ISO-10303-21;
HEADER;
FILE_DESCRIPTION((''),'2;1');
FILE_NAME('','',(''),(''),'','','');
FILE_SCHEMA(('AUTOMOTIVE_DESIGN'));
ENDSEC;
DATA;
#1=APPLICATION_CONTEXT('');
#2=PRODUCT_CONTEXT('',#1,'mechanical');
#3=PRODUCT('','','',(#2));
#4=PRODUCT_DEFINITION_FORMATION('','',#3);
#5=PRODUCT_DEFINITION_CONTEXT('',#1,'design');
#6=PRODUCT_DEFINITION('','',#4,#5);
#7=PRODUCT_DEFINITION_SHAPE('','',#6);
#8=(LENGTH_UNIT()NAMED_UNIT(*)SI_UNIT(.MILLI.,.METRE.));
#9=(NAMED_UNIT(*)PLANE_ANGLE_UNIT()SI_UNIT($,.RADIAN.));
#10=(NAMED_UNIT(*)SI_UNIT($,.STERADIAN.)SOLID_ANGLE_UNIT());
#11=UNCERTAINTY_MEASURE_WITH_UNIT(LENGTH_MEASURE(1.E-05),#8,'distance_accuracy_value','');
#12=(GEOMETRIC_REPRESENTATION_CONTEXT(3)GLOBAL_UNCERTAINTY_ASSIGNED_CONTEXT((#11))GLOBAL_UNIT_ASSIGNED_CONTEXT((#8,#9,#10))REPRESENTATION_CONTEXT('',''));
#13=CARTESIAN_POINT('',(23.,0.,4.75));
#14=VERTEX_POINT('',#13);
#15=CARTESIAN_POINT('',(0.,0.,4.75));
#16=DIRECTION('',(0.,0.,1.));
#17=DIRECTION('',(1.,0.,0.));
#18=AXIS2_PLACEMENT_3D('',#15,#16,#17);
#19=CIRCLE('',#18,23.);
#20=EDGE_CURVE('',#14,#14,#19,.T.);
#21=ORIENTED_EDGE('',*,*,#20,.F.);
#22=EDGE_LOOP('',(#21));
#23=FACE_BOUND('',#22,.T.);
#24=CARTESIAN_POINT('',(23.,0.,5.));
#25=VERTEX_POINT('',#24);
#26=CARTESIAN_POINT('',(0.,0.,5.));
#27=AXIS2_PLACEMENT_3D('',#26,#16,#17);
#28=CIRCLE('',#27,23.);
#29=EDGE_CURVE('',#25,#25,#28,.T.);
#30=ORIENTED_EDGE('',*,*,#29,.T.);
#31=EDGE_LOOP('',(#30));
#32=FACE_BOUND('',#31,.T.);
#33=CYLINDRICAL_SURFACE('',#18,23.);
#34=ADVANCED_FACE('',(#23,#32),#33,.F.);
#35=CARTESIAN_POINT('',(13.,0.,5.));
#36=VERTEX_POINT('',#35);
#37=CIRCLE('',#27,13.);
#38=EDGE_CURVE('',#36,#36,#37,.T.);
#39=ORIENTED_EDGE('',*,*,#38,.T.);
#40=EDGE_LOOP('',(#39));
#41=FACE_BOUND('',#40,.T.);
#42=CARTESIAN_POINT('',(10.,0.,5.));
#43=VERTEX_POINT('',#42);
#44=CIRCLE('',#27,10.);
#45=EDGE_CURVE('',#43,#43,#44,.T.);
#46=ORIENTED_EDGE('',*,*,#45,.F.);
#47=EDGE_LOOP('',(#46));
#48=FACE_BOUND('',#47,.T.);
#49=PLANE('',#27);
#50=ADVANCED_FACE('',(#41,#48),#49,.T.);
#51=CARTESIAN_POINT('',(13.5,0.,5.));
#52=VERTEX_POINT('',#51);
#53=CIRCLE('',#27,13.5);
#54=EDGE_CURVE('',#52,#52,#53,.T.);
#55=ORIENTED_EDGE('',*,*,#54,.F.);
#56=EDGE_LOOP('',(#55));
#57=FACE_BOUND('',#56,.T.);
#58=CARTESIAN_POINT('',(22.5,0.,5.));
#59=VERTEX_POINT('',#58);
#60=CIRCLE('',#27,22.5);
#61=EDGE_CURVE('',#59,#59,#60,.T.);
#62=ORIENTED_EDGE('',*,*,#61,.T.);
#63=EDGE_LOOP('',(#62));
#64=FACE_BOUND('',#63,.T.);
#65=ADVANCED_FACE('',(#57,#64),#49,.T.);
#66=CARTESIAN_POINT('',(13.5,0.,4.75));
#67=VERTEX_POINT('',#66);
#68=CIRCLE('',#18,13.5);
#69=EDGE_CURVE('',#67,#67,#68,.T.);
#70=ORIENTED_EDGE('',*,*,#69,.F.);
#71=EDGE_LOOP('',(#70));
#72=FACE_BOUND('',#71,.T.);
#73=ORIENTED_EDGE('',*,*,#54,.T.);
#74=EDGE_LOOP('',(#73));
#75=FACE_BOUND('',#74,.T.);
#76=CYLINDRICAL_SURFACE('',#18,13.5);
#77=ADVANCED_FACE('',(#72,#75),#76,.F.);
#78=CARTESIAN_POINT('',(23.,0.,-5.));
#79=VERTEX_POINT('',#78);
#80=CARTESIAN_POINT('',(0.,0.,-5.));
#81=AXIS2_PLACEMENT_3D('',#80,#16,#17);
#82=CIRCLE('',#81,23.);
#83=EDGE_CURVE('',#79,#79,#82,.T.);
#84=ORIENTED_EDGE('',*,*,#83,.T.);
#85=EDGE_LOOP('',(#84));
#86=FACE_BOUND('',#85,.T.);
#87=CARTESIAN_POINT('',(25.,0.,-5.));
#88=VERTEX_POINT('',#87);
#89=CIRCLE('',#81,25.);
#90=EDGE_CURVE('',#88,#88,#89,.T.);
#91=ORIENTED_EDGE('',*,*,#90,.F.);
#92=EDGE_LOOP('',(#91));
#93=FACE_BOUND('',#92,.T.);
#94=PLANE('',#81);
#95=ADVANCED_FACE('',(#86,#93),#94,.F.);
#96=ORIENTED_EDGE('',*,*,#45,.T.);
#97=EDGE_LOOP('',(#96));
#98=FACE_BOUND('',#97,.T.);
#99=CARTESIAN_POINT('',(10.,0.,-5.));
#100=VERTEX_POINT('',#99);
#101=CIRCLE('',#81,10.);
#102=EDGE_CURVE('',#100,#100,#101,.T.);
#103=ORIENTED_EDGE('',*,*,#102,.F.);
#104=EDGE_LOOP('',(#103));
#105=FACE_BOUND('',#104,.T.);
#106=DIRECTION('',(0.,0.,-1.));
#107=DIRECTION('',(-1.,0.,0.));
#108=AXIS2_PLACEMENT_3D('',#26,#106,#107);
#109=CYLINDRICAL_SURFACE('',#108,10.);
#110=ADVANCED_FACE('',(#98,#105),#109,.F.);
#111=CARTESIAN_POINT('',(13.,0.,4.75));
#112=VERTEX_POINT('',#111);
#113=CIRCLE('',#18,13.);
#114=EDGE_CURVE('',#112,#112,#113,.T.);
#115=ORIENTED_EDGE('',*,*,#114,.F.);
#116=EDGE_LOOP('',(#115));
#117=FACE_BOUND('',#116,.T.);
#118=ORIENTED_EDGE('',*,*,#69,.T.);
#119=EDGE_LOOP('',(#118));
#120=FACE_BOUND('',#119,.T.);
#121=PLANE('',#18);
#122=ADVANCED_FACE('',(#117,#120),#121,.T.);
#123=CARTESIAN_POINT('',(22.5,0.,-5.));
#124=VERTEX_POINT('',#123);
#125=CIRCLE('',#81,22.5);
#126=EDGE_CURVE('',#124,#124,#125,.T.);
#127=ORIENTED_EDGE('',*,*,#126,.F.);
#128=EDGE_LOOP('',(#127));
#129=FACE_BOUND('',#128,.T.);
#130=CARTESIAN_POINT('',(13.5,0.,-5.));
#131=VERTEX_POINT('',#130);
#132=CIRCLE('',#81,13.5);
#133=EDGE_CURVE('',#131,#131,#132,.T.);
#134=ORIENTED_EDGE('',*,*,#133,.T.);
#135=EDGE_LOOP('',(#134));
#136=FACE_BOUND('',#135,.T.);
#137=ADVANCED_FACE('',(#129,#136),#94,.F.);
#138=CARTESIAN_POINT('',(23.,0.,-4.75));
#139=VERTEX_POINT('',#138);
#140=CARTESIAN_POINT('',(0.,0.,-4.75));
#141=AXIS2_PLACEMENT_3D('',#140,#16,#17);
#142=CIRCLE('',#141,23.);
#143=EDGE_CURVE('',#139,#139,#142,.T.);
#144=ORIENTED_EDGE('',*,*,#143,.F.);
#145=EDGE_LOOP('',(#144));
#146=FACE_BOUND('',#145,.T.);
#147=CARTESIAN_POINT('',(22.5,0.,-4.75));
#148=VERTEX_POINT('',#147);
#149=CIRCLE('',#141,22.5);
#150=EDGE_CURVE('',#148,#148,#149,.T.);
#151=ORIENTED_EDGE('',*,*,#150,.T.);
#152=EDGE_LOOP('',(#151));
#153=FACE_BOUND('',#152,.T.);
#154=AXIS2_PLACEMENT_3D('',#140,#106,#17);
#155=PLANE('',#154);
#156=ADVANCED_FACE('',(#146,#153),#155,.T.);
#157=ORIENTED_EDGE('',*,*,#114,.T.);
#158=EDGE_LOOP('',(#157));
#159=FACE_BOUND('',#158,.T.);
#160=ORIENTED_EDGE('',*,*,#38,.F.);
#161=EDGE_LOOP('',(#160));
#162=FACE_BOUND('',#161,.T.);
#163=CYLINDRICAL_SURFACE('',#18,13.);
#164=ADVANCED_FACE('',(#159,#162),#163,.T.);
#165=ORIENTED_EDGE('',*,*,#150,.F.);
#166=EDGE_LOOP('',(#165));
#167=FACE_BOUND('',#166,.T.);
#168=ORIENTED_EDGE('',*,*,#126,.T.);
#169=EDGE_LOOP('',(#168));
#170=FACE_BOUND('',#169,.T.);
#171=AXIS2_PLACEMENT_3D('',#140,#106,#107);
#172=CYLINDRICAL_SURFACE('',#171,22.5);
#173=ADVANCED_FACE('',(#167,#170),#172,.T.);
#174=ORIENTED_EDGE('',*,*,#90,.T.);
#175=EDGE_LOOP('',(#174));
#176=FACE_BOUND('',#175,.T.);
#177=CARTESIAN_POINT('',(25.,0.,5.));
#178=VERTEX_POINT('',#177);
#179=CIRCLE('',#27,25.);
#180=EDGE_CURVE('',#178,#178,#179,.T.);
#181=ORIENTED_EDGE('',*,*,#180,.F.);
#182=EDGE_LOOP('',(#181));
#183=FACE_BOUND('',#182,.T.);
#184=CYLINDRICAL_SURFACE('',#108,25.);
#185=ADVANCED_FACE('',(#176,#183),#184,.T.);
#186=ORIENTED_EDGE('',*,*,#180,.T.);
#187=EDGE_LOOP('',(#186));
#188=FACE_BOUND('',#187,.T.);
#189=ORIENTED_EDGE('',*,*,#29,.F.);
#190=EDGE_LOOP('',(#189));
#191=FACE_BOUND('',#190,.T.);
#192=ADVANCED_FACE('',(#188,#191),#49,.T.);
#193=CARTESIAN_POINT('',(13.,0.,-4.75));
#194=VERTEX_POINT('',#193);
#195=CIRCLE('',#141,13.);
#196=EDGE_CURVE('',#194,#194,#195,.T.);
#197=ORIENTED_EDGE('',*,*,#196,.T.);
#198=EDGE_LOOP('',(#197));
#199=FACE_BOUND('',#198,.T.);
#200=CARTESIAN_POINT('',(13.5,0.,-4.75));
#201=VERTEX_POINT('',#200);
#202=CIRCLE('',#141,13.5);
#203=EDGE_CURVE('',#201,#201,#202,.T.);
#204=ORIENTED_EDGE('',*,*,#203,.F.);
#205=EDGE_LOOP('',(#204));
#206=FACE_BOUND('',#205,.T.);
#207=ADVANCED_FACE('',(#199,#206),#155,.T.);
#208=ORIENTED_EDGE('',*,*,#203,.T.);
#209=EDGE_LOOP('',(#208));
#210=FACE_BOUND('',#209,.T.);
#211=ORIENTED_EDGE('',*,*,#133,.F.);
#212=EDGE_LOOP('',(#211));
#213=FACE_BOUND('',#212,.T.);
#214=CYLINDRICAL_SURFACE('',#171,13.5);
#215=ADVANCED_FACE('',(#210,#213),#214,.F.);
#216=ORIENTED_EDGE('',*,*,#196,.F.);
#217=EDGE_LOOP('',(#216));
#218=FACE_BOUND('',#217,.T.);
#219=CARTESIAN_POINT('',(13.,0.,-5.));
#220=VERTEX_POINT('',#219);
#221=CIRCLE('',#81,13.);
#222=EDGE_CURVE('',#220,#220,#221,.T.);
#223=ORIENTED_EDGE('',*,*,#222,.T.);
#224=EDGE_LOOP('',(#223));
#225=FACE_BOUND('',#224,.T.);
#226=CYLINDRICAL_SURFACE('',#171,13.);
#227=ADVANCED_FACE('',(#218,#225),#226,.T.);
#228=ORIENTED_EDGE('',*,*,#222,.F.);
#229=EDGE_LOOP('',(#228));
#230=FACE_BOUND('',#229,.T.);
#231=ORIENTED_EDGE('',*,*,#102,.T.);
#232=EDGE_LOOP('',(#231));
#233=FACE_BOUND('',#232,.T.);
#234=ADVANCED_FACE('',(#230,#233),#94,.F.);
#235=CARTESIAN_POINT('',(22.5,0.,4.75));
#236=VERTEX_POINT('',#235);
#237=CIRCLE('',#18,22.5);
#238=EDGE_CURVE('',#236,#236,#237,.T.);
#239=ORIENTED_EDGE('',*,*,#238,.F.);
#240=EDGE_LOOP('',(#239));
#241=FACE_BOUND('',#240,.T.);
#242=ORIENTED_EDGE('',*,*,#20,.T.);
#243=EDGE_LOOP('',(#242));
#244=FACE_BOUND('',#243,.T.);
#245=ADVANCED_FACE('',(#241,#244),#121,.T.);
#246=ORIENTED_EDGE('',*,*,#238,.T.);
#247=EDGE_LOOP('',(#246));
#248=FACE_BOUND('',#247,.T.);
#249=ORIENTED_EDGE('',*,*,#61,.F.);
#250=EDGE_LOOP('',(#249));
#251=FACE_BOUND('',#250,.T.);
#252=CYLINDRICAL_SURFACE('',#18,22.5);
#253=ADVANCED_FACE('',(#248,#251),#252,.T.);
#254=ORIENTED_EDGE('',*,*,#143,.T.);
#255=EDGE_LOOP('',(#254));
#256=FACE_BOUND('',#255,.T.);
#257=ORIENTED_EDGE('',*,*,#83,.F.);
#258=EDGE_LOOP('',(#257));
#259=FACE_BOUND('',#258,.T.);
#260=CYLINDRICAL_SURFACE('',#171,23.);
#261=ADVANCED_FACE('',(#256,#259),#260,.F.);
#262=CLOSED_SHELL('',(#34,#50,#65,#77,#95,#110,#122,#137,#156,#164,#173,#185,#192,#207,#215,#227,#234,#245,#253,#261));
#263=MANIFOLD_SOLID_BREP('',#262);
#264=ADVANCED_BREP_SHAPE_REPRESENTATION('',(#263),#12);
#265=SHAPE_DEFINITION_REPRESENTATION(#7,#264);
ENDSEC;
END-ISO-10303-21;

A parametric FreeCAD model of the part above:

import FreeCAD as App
import Part
import Sketcher

doc = App.newDocument("Part")
body = doc.addObject("PartDesign::Body", "Body")

sketch1 = body.newObject("Sketcher::SketchObject", "Sketch")
sketch1.AttachmentSupport = (doc.getObject("XY_Plane"), [""])
sketch1.MapMode = "FlatFace"
sketch1.addGeometry([
    Part.Circle(App.Vector(0, 0, 0), App.Vector(0, 0, 1), 25),
    Part.Circle(App.Vector(0, 0, 0), App.Vector(0, 0, 1), 10),
], False)
sketch1.addConstraint([
    Sketcher.Constraint("Coincident", 0, 3, -1, 1),
    Sketcher.Constraint("Coincident", 1, 3, -1, 1),
    Sketcher.Constraint("Diameter", 0, 50.0),
    Sketcher.Constraint("Diameter", 1, 20.0),
])
pad1 = body.newObject("PartDesign::Pad", "Pad")
pad1.Profile = sketch1
pad1.Length = 10
pad1.Midplane = True

sketch2 = body.newObject("Sketcher::SketchObject", "Sketch001")
sketch2.AttachmentSupport = (doc.getObject("XY_Plane"), [""])
sketch2.MapMode = "FlatFace"
sketch2.AttachmentOffset = App.Placement(App.Vector(0, 0, 5), App.Rotation())
sketch2.addGeometry([
    Part.Circle(App.Vector(0, 0, 0), App.Vector(0, 0, 1), 23),
    Part.Circle(App.Vector(0, 0, 0), App.Vector(0, 0, 1), 22.5),
    Part.Circle(App.Vector(0, 0, 0), App.Vector(0, 0, 1), 13.5),
    Part.Circle(App.Vector(0, 0, 0), App.Vector(0, 0, 1), 13),
], False)
sketch2.addConstraint([
    Sketcher.Constraint("Coincident", 0, 3, -1, 1),
    Sketcher.Constraint("Coincident", 1, 3, -1, 1),
    Sketcher.Constraint("Coincident", 2, 3, -1, 1),
    Sketcher.Constraint("Coincident", 3, 3, -1, 1),
    Sketcher.Constraint("Diameter", 0, 46.0),
    Sketcher.Constraint("Diameter", 1, 45.0),
    Sketcher.Constraint("Diameter", 2, 27.0),
    Sketcher.Constraint("Diameter", 3, 26.0),
])
pocket1 = body.newObject("PartDesign::Pocket", "Pocket")
pocket1.Profile = sketch2
pocket1.Length = 0.25
doc.recompute()

mirrored = body.newObject("PartDesign::Mirrored", "Mirrored")
mirrored.Originals = [pocket1]
mirrored.MirrorPlane = (doc.getObject("XY_Plane"), [""])
body.Tip = mirrored

doc.recompute()
